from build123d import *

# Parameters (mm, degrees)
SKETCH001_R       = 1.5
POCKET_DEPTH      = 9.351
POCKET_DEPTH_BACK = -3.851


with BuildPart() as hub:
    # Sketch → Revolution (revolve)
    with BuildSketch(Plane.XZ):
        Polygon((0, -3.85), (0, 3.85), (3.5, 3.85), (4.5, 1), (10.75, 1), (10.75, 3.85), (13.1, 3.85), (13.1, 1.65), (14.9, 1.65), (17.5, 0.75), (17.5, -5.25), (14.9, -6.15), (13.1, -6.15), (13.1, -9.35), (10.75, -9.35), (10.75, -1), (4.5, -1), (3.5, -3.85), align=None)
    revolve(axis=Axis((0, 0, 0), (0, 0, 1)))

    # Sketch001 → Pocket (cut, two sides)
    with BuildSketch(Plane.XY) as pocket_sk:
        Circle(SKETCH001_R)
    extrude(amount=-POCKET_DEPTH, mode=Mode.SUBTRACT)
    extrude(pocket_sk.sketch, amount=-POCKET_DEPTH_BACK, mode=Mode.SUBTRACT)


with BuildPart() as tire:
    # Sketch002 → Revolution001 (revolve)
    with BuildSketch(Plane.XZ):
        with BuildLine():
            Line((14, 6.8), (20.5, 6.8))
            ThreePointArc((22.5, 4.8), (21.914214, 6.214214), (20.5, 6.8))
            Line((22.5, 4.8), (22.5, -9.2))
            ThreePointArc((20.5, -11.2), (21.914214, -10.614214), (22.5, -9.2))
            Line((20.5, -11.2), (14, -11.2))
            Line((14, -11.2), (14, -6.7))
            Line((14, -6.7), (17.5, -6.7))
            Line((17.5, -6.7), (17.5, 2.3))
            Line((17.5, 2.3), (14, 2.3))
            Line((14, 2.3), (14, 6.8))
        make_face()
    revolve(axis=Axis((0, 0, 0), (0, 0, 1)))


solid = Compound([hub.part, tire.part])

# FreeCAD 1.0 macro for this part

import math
import FreeCAD as App
import Part
import Sketcher

V = App.Vector
Q = App.Units.Quantity

doc = App.newDocument("Part")
body = doc.addObject("PartDesign::Body", "Body")

# Sketch on XZ plane
sketch1 = body.newObject("Sketcher::SketchObject", "Sketch")
sketch1.AttachmentSupport = (doc.getObject("XZ_Plane"), [""])
sketch1.MapMode = "FlatFace"
sketch1.addGeometry([
    Part.LineSegment(V(0, 3.85, 0), V(0, -3.85, 0)),  # 0
    Part.LineSegment(V(0, -3.85, 0), V(3.5, -3.85, 0)),  # 1
    Part.LineSegment(V(3.5, -3.85, 0), V(4.5, -1, 0)),  # 2
    Part.LineSegment(V(4.5, -1, 0), V(10.75, -1, 0)),  # 3
    Part.LineSegment(V(10.75, -1, 0), V(10.75, -9.35, 0)),  # 4
    Part.LineSegment(V(10.75, -9.35, 0), V(13.1, -9.35, 0)),  # 5
    Part.LineSegment(V(13.1, -9.35, 0), V(13.1, -6.15, 0)),  # 6
    Part.LineSegment(V(13.1, -6.15, 0), V(14.9, -6.15, 0)),  # 7
    Part.LineSegment(V(14.9, -6.15, 0), V(17.5, -5.25, 0)),  # 8
    Part.LineSegment(V(17.5, -5.25, 0), V(17.5, 0.75, 0)),  # 9
    Part.LineSegment(V(17.5, 0.75, 0), V(14.9, 1.65, 0)),  # 10
    Part.LineSegment(V(14.9, 1.65, 0), V(13.1, 1.65, 0)),  # 11
    Part.LineSegment(V(13.1, 1.65, 0), V(13.1, 3.85, 0)),  # 12
    Part.LineSegment(V(13.1, 3.85, 0), V(10.75, 3.85, 0)),  # 13
    Part.LineSegment(V(10.75, 3.85, 0), V(10.75, 1, 0)),  # 14
    Part.LineSegment(V(10.75, 1, 0), V(4.5, 1, 0)),  # 15
    Part.LineSegment(V(4.5, 1, 0), V(3.5, 3.85, 0)),  # 16
    Part.LineSegment(V(3.5, 3.85, 0), V(0, 3.85, 0)),  # 17
], False)
sketch1.addConstraint([
    Sketcher.Constraint("Coincident", 0, 2, 1, 1),
    Sketcher.Constraint("Coincident", 1, 2, 2, 1),
    Sketcher.Constraint("Coincident", 2, 2, 3, 1),
    Sketcher.Constraint("Coincident", 3, 2, 4, 1),
    Sketcher.Constraint("Coincident", 4, 2, 5, 1),
    Sketcher.Constraint("Coincident", 5, 2, 6, 1),
    Sketcher.Constraint("Coincident", 6, 2, 7, 1),
    Sketcher.Constraint("Coincident", 7, 2, 8, 1),
    Sketcher.Constraint("Coincident", 8, 2, 9, 1),
    Sketcher.Constraint("Coincident", 9, 2, 10, 1),
    Sketcher.Constraint("Coincident", 10, 2, 11, 1),
    Sketcher.Constraint("Coincident", 11, 2, 12, 1),
    Sketcher.Constraint("Coincident", 12, 2, 13, 1),
    Sketcher.Constraint("Coincident", 13, 2, 14, 1),
    Sketcher.Constraint("Coincident", 14, 2, 15, 1),
    Sketcher.Constraint("Coincident", 15, 2, 16, 1),
    Sketcher.Constraint("Coincident", 16, 2, 17, 1),
    Sketcher.Constraint("Coincident", 17, 2, 0, 1),
    Sketcher.Constraint("Vertical", 0),
    Sketcher.Constraint("Horizontal", 1),
    Sketcher.Constraint("Horizontal", 3),
    Sketcher.Constraint("Vertical", 4),
    Sketcher.Constraint("Horizontal", 5),
    Sketcher.Constraint("Vertical", 6),
    Sketcher.Constraint("Horizontal", 7),
    Sketcher.Constraint("Vertical", 9),
    Sketcher.Constraint("Horizontal", 11),
    Sketcher.Constraint("Vertical", 12),
    Sketcher.Constraint("Horizontal", 13),
    Sketcher.Constraint("Vertical", 14),
    Sketcher.Constraint("Horizontal", 15),
    Sketcher.Constraint("Horizontal", 17),
    Sketcher.Constraint("Symmetric", 0, 2, 17, 2, -1, 1),
    Sketcher.Constraint("Symmetric", 3, 2, 14, 2, -1),
    Sketcher.Constraint("Horizontal", 13, 2, 16, 2),
    Sketcher.Constraint("Vertical", 7, 2, 10, 2),
    Sketcher.Constraint("Vertical", 6, 2, 11, 2),
    Sketcher.Constraint("Vertical", 2, 2, 15, 2),
    Sketcher.Constraint("Vertical", 1, 2, 16, 2),
    Sketcher.Constraint("Equal", 8, 10),
    Sketcher.Constraint("DistanceY", 9, 1, 9, 2, Q("6 mm")),
    Sketcher.Constraint("DistanceX", 1, 1, 1, 2, Q("3.5 mm")),
    Sketcher.Constraint("DistanceX", 7, 1, 7, 2, Q("1.8 mm")),
    Sketcher.Constraint("DistanceY", 0, 2, 0, 1, Q("7.7 mm")),
    Sketcher.Constraint("DistanceY", 6, 1, 6, 2, Q("3.2 mm")),
    Sketcher.Constraint("DistanceY", 12, 1, 12, 2, Q("2.2 mm")),
    Sketcher.Constraint("DistanceY", 2, 2, -1, 1, Q("1 mm")),
    Sketcher.Constraint("DistanceX", 1, 2, 2, 2, Q("1 mm")),
    Sketcher.Constraint("DistanceX", 3, 1, 3, 2, Q("6.25 mm")),
    Sketcher.Constraint("DistanceX", 5, 1, 5, 2, Q("2.35 mm")),
    Sketcher.Constraint("DistanceY", 4, 2, 4, 1, Q("8.35 mm")),
    Sketcher.Constraint("DistanceX", -1, 1, 8, 2, Q("17.5 mm")),
])
revolution = body.newObject("PartDesign::Revolution", "Revolution")
revolution.Profile = sketch1
revolution.ReferenceAxis = (sketch1, ["V_Axis"])
revolution.Angle = 360

# Sketch on XY plane
sketch2 = body.newObject("Sketcher::SketchObject", "Sketch001")
sketch2.AttachmentSupport = (doc.getObject("XY_Plane"), [""])
sketch2.MapMode = "FlatFace"
sketch2.addGeometry(Part.Circle(V(0, 0, 0), V(0, 0, 1), 1.5), False)
sketch2.addConstraint([
    Sketcher.Constraint("Coincident", 0, 3, -1, 1),
    Sketcher.Constraint("Diameter", 0, Q("3 mm")),
])
pocket1 = body.newObject("PartDesign::Pocket", "Pocket")
pocket1.Profile = sketch2
pocket1.Type = "ThroughAll"
pocket1.Midplane = True
body2 = doc.addObject("PartDesign::Body", "Body001")

# Sketch on XZ plane
sketch3 = body2.newObject("Sketcher::SketchObject", "Sketch002")
sketch3.AttachmentSupport = (doc.getObject("XZ_Plane001"), [""])
sketch3.MapMode = "FlatFace"
sketch3.addGeometry([
    Part.LineSegment(V(20.5, 6.8, 0), V(14, 6.8, 0)),  # 0
    Part.LineSegment(V(14, 6.8, 0), V(14, 2.3, 0)),  # 1
    Part.LineSegment(V(14, 2.3, 0), V(17.5, 2.3, 0)),  # 2
    Part.LineSegment(V(17.5, 2.3, 0), V(17.5, -6.7, 0)),  # 3
    Part.LineSegment(V(17.5, -6.7, 0), V(14, -6.7, 0)),  # 4
    Part.LineSegment(V(14, -6.7, 0), V(14, -11.2, 0)),  # 5
    Part.LineSegment(V(14, -11.2, 0), V(20.5, -11.2, 0)),  # 6
    Part.ArcOfCircle(Part.Circle(V(20.500001, -9.200001, 0), V(0, 0, 1), 1.999999), math.radians(-90.000043), math.radians(0.000043)),  # 7
    Part.LineSegment(V(22.5, -9.2, 0), V(22.5, 4.8, 0)),  # 8
    Part.ArcOfCircle(Part.Circle(V(20.500001, 4.800001, 0), V(0, 0, 1), 1.999999), math.radians(-0.000043), math.radians(90.000043)),  # 9
], False)
sketch3.addConstraint([
    Sketcher.Constraint("Coincident", 0, 2, 1, 1),
    Sketcher.Constraint("Coincident", 1, 2, 2, 1),
    Sketcher.Constraint("Coincident", 2, 2, 3, 1),
    Sketcher.Constraint("Coincident", 3, 2, 4, 1),
    Sketcher.Constraint("Coincident", 4, 2, 5, 1),
    Sketcher.Constraint("Coincident", 5, 2, 6, 1),
    Sketcher.Constraint("Tangent", 6, 2, 7, 1),
    Sketcher.Constraint("Tangent", 7, 2, 8, 1),
    Sketcher.Constraint("Tangent", 8, 2, 9, 1),
    Sketcher.Constraint("Tangent", 9, 2, 0, 1),
    Sketcher.Constraint("Horizontal", 0),
    Sketcher.Constraint("Vertical", 1),
    Sketcher.Constraint("Horizontal", 2),
    Sketcher.Constraint("Vertical", 3),
    Sketcher.Constraint("Horizontal", 4),
    Sketcher.Constraint("Vertical", 5),
    Sketcher.Constraint("Horizontal", 6),
    Sketcher.Constraint("Vertical", 8),
    Sketcher.Constraint("Equal", 7, 9),
    Sketcher.Constraint("Vertical", 1, 2, 4, 2),
    Sketcher.Constraint("Equal", 1, 5),
    Sketcher.Constraint("Radius", 7, Q("1.999999 mm")),
    Sketcher.Constraint("DistanceY", 3, 2, 3, 1, Q("9 mm")),
    Sketcher.Constraint("DistanceY", 8, 1, 8, 2, Q("14 mm")),
    Sketcher.Constraint("DistanceX", 0, 2, 0, 1, Q("6.5 mm")),
    Sketcher.Constraint("DistanceX", 2, 1, 2, 2, Q("3.5 mm")),
    Sketcher.Constraint("DistanceX", -1, 1, 0, 2, Q("14 mm")),
    Sketcher.Constraint("DistanceY", 7, 3, -1, 1, Q("9.200001 mm")),
])
revolution2 = body2.newObject("PartDesign::Revolution", "Revolution001")
revolution2.Profile = sketch3
revolution2.ReferenceAxis = (sketch3, ["V_Axis"])
revolution2.Angle = 360

doc.recompute()
